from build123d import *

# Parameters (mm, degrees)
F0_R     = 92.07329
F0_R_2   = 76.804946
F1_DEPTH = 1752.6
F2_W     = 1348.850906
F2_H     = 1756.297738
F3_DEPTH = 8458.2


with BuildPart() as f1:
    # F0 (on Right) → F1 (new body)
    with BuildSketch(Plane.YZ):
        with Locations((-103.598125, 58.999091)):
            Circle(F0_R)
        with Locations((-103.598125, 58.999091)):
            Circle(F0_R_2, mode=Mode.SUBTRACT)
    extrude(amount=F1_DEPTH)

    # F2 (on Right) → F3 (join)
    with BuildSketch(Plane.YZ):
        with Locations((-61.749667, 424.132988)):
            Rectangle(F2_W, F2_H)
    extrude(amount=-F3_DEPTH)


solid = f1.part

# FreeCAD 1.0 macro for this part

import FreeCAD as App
import Part
import Sketcher
Q = App.Units.Quantity

doc = App.newDocument("Part")
body = doc.addObject("PartDesign::Body", "Body")

sketch1 = body.newObject("Sketcher::SketchObject", "Sketch")
sketch1.AttachmentSupport = (doc.getObject("YZ_Plane"), [""])
sketch1.MapMode = "FlatFace"
sketch1.addGeometry(Part.Circle(App.Vector(-103.598125, 58.999091, 0), App.Vector(0, 0, 1), 92.07329), False)
sketch1.addGeometry(Part.Circle(App.Vector(-103.598125, 58.999091, 0), App.Vector(0, 0, 1), 76.804946), False)
sketch1.addConstraint(Sketcher.Constraint("Coincident", 1, 3, 0, 3))
sketch1.addConstraint(Sketcher.Constraint("Diameter", 0, Q("184.14658 mm")))
sketch1.addConstraint(Sketcher.Constraint("Diameter", 1, Q("153.609892 mm")))
sketch1.addConstraint(Sketcher.Constraint("DistanceY", -1, 1, 0, 3, Q("58.999091 mm")))
sketch1.addConstraint(Sketcher.Constraint("DistanceX", 0, 3, -1, 1, Q("103.598125 mm")))
pad1 = body.newObject("PartDesign::Pad", "Pad")
pad1.Profile = sketch1
pad1.Length = Q("69 in")

sketch2 = body.newObject("Sketcher::SketchObject", "Sketch001")
sketch2.AttachmentSupport = (doc.getObject("YZ_Plane"), [""])
sketch2.MapMode = "FlatFace"
sketch2.addGeometry(Part.LineSegment(App.Vector(-736.17512, 1302.281857, 0), App.Vector(-736.17512, -454.015881, 0)), False)
sketch2.addGeometry(Part.LineSegment(App.Vector(-736.17512, -454.015881, 0), App.Vector(612.675786, -454.015881, 0)), False)
sketch2.addGeometry(Part.LineSegment(App.Vector(612.675786, -454.015881, 0), App.Vector(612.675786, 1302.281857, 0)), False)
sketch2.addGeometry(Part.LineSegment(App.Vector(612.675786, 1302.281857, 0), App.Vector(-736.17512, 1302.281857, 0)), False)
sketch2.addConstraint(Sketcher.Constraint("Coincident", 0, 2, 1, 1))
sketch2.addConstraint(Sketcher.Constraint("Coincident", 1, 2, 2, 1))
sketch2.addConstraint(Sketcher.Constraint("Coincident", 2, 2, 3, 1))
sketch2.addConstraint(Sketcher.Constraint("Coincident", 3, 2, 0, 1))
sketch2.addConstraint(Sketcher.Constraint("Vertical", 0))
sketch2.addConstraint(Sketcher.Constraint("Horizontal", 1))
sketch2.addConstraint(Sketcher.Constraint("Vertical", 2))
sketch2.addConstraint(Sketcher.Constraint("Horizontal", 3))
sketch2.addConstraint(Sketcher.Constraint("DistanceY", 0, 2, 0, 1, Q("1756.297738 mm")))
sketch2.addConstraint(Sketcher.Constraint("DistanceX", 1, 1, 1, 2, Q("1348.850906 mm")))
sketch2.addConstraint(Sketcher.Constraint("DistanceX", 0, 2, -1, 1, Q("736.17512 mm")))
sketch2.addConstraint(Sketcher.Constraint("DistanceY", 0, 2, -1, 1, Q("454.015881 mm")))
pad2 = body.newObject("PartDesign::Pad", "Pad001")
pad2.Profile = sketch2
pad2.Length = Q("333 in")
pad2.Reversed = True

doc.recompute()
